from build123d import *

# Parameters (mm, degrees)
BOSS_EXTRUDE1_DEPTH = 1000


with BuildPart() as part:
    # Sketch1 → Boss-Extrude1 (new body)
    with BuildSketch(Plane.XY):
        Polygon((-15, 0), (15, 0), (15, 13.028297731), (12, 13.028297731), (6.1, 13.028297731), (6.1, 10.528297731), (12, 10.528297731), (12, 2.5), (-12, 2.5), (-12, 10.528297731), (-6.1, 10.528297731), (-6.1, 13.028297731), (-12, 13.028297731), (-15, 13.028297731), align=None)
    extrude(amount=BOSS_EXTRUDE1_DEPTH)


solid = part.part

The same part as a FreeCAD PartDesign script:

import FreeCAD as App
import Part
import Sketcher

V = App.Vector

doc = App.newDocument("Part")
params = doc.addObject("Spreadsheet::Sheet", "Params")
for row, (alias, value) in enumerate([
    ("sketch1_width", "30 mm"),
    ("sketch1_width2", "24 mm"),
    ("sketch1_width3", "8.9 mm"),
    ("sketch1_height", "2.5 mm"),
    ("pad1_length", "1000 mm"),
], start=1):
    params.set(f"A{row}", alias)
    params.set(f"B{row}", "=" + value)
    params.setAlias(f"B{row}", alias)

body = doc.addObject("PartDesign::Body", "Body")

# Sketch on XY plane
sketch1 = body.newObject("Sketcher::SketchObject", "Sketch")
sketch1.AttachmentSupport = (doc.getObject("XY_Plane"), [""])
sketch1.MapMode = "FlatFace"
sketch1.addGeometry([
    Part.LineSegment(V(-15, 0, 0), V(15, 0, 0)),  # 0
    Part.LineSegment(V(15, 0, 0), V(15, 13, 0)),  # 1
    Part.LineSegment(V(15, 13, 0), V(6.1, 13, 0)),  # 2
    Part.LineSegment(V(6.1, 13, 0), V(6.1, 10.5, 0)),  # 3
    Part.LineSegment(V(6.1, 10.5, 0), V(12, 10.5, 0)),  # 4
    Part.LineSegment(V(12, 10.5, 0), V(12, 2.5, 0)),  # 5
    Part.LineSegment(V(12, 2.5, 0), V(-12, 2.5, 0)),  # 6
    Part.LineSegment(V(-12, 2.5, 0), V(-12, 10.5, 0)),  # 7
    Part.LineSegment(V(-12, 10.5, 0), V(-6.1, 10.5, 0)),  # 8
    Part.LineSegment(V(-6.1, 10.5, 0), V(-6.1, 13, 0)),  # 9
    Part.LineSegment(V(-6.1, 13, 0), V(-15, 13, 0)),  # 10
    Part.LineSegment(V(-15, 13, 0), V(-15, 0, 0)),  # 11
], False)
sketch1.addConstraint([
    Sketcher.Constraint("Coincident", 0, 2, 1, 1),
    Sketcher.Constraint("Coincident", 1, 2, 2, 1),
    Sketcher.Constraint("Coincident", 2, 2, 3, 1),
    Sketcher.Constraint("Coincident", 3, 2, 4, 1),
    Sketcher.Constraint("Coincident", 4, 2, 5, 1),
    Sketcher.Constraint("Coincident", 5, 2, 6, 1),
    Sketcher.Constraint("Coincident", 6, 2, 7, 1),
    Sketcher.Constraint("Coincident", 7, 2, 8, 1),
    Sketcher.Constraint("Coincident", 8, 2, 9, 1),
    Sketcher.Constraint("Coincident", 9, 2, 10, 1),
    Sketcher.Constraint("Coincident", 10, 2, 11, 1),
    Sketcher.Constraint("Coincident", 11, 2, 0, 1),
    Sketcher.Constraint("Horizontal", 0),
    Sketcher.Constraint("Vertical", 1),
    Sketcher.Constraint("Horizontal", 2),
    Sketcher.Constraint("Vertical", 3),
    Sketcher.Constraint("Horizontal", 4),
    Sketcher.Constraint("Vertical", 5),
    Sketcher.Constraint("Horizontal", 6),
    Sketcher.Constraint("Vertical", 7),
    Sketcher.Constraint("Horizontal", 8),
    Sketcher.Constraint("Vertical", 9),
    Sketcher.Constraint("Horizontal", 10),
    Sketcher.Constraint("Vertical", 11),
    Sketcher.Constraint("Symmetric", 0, 2, 11, 2, -1, 1),
    Sketcher.Constraint("Symmetric", 4, 2, 7, 2, -2),
    Sketcher.Constraint("Symmetric", 2, 2, 9, 2, -2),
    Sketcher.Constraint("DistanceX", 0, 1, 0, 2, 30.0),
    Sketcher.Constraint("DistanceX", 6, 2, 6, 1, 24.0),
    Sketcher.Constraint("DistanceX", 2, 2, 2, 1, 8.9),
    Sketcher.Constraint("DistanceY", 3, 2, 3, 1, 2.5),
    Sketcher.Constraint("DistanceY", -1, 1, 5, 2, 2.5),
    Sketcher.Constraint("DistanceY", 1, 1, 1, 2, 13.028298),
])
sketch1.setExpression("Constraints[27]", "Params.sketch1_width")
sketch1.setExpression("Constraints[28]", "Params.sketch1_width2")
sketch1.setExpression("Constraints[29]", "Params.sketch1_width3")
sketch1.setExpression("Constraints[30]", "Params.sketch1_height")
pad1 = body.newObject("PartDesign::Pad", "Pad")
pad1.Profile = sketch1
pad1.setExpression("Length", "Params.pad1_length")

doc.recompute()
